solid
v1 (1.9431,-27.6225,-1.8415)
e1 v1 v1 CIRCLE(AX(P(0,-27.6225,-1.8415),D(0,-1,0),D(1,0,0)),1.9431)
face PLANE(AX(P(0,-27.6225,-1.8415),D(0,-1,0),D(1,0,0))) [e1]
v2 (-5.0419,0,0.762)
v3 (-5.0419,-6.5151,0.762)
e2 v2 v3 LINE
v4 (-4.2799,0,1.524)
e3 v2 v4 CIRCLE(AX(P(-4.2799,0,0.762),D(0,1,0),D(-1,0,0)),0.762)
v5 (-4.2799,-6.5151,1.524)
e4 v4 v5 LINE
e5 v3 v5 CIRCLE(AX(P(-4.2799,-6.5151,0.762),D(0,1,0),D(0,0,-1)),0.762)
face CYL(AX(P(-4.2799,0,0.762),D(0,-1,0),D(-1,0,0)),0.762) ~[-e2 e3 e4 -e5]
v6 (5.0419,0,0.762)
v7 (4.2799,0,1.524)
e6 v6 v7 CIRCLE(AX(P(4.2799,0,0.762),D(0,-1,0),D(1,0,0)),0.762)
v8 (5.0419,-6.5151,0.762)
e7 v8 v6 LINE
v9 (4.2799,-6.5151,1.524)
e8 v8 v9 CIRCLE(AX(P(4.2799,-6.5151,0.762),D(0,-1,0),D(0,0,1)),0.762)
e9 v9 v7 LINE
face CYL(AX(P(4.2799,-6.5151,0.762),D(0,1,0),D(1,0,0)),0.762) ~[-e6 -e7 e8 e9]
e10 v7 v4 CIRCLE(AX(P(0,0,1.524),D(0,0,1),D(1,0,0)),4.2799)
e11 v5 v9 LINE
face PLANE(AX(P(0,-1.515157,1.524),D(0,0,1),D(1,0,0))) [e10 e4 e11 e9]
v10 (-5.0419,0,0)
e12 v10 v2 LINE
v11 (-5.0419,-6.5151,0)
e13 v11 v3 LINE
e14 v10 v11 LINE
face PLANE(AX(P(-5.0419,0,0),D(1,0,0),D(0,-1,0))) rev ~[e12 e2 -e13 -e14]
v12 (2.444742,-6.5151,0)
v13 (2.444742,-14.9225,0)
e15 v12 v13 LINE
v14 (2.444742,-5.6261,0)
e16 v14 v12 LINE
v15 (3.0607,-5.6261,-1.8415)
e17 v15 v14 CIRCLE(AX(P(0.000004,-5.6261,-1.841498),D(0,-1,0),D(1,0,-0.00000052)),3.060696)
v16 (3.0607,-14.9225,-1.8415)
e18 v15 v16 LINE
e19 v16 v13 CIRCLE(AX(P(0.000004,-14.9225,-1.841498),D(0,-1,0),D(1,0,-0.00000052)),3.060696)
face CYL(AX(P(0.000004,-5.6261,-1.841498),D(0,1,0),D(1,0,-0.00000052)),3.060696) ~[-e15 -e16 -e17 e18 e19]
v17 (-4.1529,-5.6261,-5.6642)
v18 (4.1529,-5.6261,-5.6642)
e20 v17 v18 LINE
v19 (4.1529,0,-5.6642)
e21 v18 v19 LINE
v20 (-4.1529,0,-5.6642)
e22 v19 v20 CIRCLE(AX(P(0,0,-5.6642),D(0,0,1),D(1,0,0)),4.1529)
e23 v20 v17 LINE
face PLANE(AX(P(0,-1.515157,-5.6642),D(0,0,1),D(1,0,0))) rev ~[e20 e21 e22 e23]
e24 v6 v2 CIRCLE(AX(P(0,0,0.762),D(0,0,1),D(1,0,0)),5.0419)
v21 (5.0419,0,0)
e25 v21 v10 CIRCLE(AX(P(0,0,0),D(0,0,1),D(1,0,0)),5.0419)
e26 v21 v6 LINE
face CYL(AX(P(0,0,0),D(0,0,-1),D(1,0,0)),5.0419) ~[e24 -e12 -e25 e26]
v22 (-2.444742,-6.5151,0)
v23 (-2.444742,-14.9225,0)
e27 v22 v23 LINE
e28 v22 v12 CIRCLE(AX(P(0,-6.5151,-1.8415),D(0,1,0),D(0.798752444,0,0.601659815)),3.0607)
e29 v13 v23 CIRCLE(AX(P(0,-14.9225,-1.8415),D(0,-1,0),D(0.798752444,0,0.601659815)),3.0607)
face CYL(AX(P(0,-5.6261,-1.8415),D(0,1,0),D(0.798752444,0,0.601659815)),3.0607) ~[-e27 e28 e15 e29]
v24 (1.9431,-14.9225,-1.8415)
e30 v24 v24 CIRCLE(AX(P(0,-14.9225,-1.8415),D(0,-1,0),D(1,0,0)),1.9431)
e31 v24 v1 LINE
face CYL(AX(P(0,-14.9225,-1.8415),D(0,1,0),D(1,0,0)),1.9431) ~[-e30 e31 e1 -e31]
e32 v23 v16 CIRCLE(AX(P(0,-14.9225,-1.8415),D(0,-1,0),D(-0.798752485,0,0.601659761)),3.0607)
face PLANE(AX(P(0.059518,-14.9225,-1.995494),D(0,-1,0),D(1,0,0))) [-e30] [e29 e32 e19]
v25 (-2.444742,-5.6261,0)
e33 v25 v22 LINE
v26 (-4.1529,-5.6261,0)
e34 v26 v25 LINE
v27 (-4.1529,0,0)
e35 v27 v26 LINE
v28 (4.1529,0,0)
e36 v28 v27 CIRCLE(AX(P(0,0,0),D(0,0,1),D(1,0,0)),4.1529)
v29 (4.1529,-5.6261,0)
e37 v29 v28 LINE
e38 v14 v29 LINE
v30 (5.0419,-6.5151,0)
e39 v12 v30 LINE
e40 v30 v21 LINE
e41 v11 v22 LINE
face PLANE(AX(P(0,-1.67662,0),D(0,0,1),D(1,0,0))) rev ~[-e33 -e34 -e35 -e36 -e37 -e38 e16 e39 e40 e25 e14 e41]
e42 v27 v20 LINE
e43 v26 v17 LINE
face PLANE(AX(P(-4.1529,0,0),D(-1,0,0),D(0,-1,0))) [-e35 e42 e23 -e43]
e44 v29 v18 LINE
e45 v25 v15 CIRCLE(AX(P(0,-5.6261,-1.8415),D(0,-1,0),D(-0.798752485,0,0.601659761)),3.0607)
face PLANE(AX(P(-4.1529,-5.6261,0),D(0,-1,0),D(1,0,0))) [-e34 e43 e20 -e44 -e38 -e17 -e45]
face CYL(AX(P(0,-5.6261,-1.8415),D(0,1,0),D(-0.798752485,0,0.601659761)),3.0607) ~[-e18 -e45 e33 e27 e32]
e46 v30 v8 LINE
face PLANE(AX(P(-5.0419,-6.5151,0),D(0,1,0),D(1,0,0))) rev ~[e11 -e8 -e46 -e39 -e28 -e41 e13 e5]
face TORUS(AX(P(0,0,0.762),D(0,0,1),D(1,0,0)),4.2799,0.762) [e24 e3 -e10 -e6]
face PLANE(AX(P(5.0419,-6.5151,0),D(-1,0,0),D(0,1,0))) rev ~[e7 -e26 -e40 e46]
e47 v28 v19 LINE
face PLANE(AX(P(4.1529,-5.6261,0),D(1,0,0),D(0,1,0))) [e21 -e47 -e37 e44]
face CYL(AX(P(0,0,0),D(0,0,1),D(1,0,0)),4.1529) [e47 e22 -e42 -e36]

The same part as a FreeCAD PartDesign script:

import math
import FreeCAD as App
import Part
import Sketcher
from FreeCAD import Vector
Q = App.Units.Quantity


def edges_at(feature, points):
    """Names of the edges that pass closest to the given points."""
    edges = feature.Shape.Edges
    near = lambda p: min(range(len(edges)), key=lambda i: edges[i].distToShape(Part.Vertex(*p))[0])
    return sorted({f"Edge{near(p) + 1}" for p in points})

doc = App.newDocument("Part")
body = doc.addObject("PartDesign::Body", "Body")
body.AllowCompound = True

sketch1 = body.newObject("Sketcher::SketchObject", "Sketch")
sketch1.AttachmentSupport = (doc.getObject("XY_Plane"), [""])
sketch1.MapMode = "FlatFace"
sketch1.addGeometry([
    Part.LineSegment(Vector(4.2, -5.6, 0), Vector(4.2, 0, 0)),
    Part.ArcOfCircle(Part.Circle(Vector(0, 0, 0), Vector(0, 0, 1), 4.2), math.radians(0), math.radians(180)),
    Part.LineSegment(Vector(-4.2, 0, 0), Vector(-4.2, -5.6, 0)),
    Part.LineSegment(Vector(-4.2, -5.6, 0), Vector(4.2, -5.6, 0)),
], False)
sketch1.addConstraint([
    Sketcher.Constraint("Tangent", 0, 2, 1, 1),
    Sketcher.Constraint("Tangent", 1, 2, 2, 1),
    Sketcher.Constraint("Coincident", 2, 2, 3, 1),
    Sketcher.Constraint("Coincident", 3, 2, 0, 1),
    Sketcher.Constraint("Vertical", 0),
    Sketcher.Constraint("Vertical", 2),
    Sketcher.Constraint("Horizontal", 3),
    Sketcher.Constraint("Coincident", 1, 3, -1, 1),
    Sketcher.Constraint("Radius", 1, Q("0.1635 in")),
    Sketcher.Constraint("DistanceY", 0, 1, 0, 2, Q("0.2215 in")),
])
pad1 = body.newObject("PartDesign::Pad", "Pad")
pad1.Profile = sketch1
pad1.Length = Q("0.223 in")
pad1.Reversed = True

sketch2 = body.newObject("Sketcher::SketchObject", "Sketch001")
sketch2.AttachmentSupport = (doc.getObject("XY_Plane"), [""])
sketch2.MapMode = "FlatFace"
sketch2.addGeometry([
    Part.ArcOfCircle(Part.Circle(Vector(0, 0, 0), Vector(0, 0, 1), 5), math.radians(0), math.radians(180)),
    Part.LineSegment(Vector(-5, 0, 0), Vector(-5, -6.5, 0)),
    Part.LineSegment(Vector(-5, -6.5, 0), Vector(5, -6.5, 0)),
    Part.LineSegment(Vector(5, -6.5, 0), Vector(5, 0, 0)),
    Part.LineSegment(Vector(4.2, -5.6, 0), Vector(-4.2, -5.6, 0)),
    Part.LineSegment(Vector(-4.2, -5.6, 0), Vector(-4.2, 0, 0)),
    Part.ArcOfCircle(Part.Circle(Vector(0, 0, 0), Vector(0, 0, 1), 4.2), math.radians(0), math.radians(180)),
    Part.LineSegment(Vector(4.2, 0, 0), Vector(4.2, -5.6, 0)),
], False)
sketch2.addConstraint([
    Sketcher.Constraint("Tangent", 0, 2, 1, 1),
    Sketcher.Constraint("Coincident", 1, 2, 2, 1),
    Sketcher.Constraint("Coincident", 2, 2, 3, 1),
    Sketcher.Constraint("Tangent", 3, 2, 0, 1),
    Sketcher.Constraint("Coincident", 4, 2, 5, 1),
    Sketcher.Constraint("Tangent", 5, 2, 6, 2),
    Sketcher.Constraint("Tangent", 6, 1, 7, 1),
    Sketcher.Constraint("Coincident", 7, 2, 4, 1),
    Sketcher.Constraint("Vertical", 1),
    Sketcher.Constraint("Horizontal", 2),
    Sketcher.Constraint("Vertical", 3),
    Sketcher.Constraint("Horizontal", 4),
    Sketcher.Constraint("Vertical", 5),
    Sketcher.Constraint("Vertical", 7),
    Sketcher.Constraint("Coincident", 0, 3, -1, 1),
    Sketcher.Constraint("Coincident", 6, 3, -1, 1),
    Sketcher.Constraint("Radius", 0, Q("0.1985 in")),
    Sketcher.Constraint("Radius", 6, Q("0.1635 in")),
    Sketcher.Constraint("DistanceY", 1, 2, 1, 1, Q("0.2565 in")),
    Sketcher.Constraint("DistanceY", 5, 1, 5, 2, Q("0.2215 in")),
])
pad2 = body.newObject("PartDesign::Pad", "Pad001")
pad2.Profile = sketch2
pad2.Length = Q("0.06 in")
body2 = doc.addObject("PartDesign::Body", "Body001")

sketch3 = body2.newObject("Sketcher::SketchObject", "Sketch002")
sketch3.AttachmentSupport = (doc.getObject("XY_Plane001"), [""])
sketch3.MapMode = "FlatFace"
sketch3.addGeometry([
    Part.LineSegment(Vector(-4.2, 0, 0), Vector(-4.2, -5.6, 0)),
    Part.LineSegment(Vector(-4.2, -5.6, 0), Vector(4.2, -5.6, 0)),
    Part.LineSegment(Vector(4.2, -5.6, 0), Vector(4.2, 0, 0)),
    Part.ArcOfCircle(Part.Circle(Vector(0, 0, 0), Vector(0, 0, 1), 4.2), math.radians(0), math.radians(180)),
], False)
sketch3.addConstraint([
    Sketcher.Constraint("Coincident", 0, 2, 1, 1),
    Sketcher.Constraint("Coincident", 1, 2, 2, 1),
    Sketcher.Constraint("Tangent", 2, 2, 3, 1),
    Sketcher.Constraint("Tangent", 3, 2, 0, 1),
    Sketcher.Constraint("Vertical", 0),
    Sketcher.Constraint("Horizontal", 1),
    Sketcher.Constraint("Vertical", 2),
    Sketcher.Constraint("Coincident", 3, 3, -1, 1),
    Sketcher.Constraint("Radius", 3, Q("0.1635 in")),
    Sketcher.Constraint("DistanceY", 0, 2, 0, 1, Q("0.2215 in")),
])
pad3 = body2.newObject("PartDesign::Pad", "Pad002")
pad3.Profile = sketch3
pad3.Length = Q("0.06 in")
doc.recompute()

boolean = body.newObject("PartDesign::Boolean", "Boolean")
boolean.Type = "Fuse"
boolean.addObjects([body2])

sketch4 = body.newObject("Sketcher::SketchObject", "Sketch003")
sketch4.AttachmentSupport = (doc.getObject("XZ_Plane"), [""])
sketch4.MapMode = "FlatFace"
sketch4.AttachmentOffset = App.Placement(Vector(0, 0, 0.2215 * 25.4), App.Rotation())
sketch4.addGeometry([
    Part.ArcOfCircle(Part.Circle(Vector(0, -1.8, 0), Vector(0, 0, 1), 3.1), math.radians(143), math.radians(360)),
    Part.ArcOfCircle(Part.Circle(Vector(0, -1.8, 0), Vector(0, 0, 1), 3.1), math.radians(0), math.radians(37)),
    Part.ArcOfCircle(Part.Circle(Vector(0, -1.8, 0), Vector(0, 0, 1), 3.1), math.radians(37), math.radians(143)),
], False)
sketch4.addConstraint([
    Sketcher.Constraint("Tangent", 0, 2, 1, 1),
    Sketcher.Constraint("Tangent", 1, 2, 2, 1),
    Sketcher.Constraint("Tangent", 2, 2, 0, 1),
    Sketcher.Constraint("Symmetric", 1, 2, 2, 2, -1, 1),
    Sketcher.Constraint("PointOnObject", 0, 3, -2),
    Sketcher.Constraint("Horizontal", 2, 3, 0, 2),
    Sketcher.Constraint("Radius", 0, Q("0.1205 in")),
    Sketcher.Constraint("DistanceY", 0, 3, -1, 1, Q("0.0725 in")),
])
pad4 = body.newObject("PartDesign::Pad", "Pad003")
pad4.Profile = sketch4
pad4.Length = Q("0.366 in")
doc.recompute()

fillet = body.newObject("PartDesign::Fillet", "Fillet")
fillet.Base = (pad4, edges_at(pad4, [(5.042, -3.258, 1.524)]))
fillet.Radius = Q("0.03 in")

sketch5 = body.newObject("Sketcher::SketchObject", "Sketch004")
sketch5.AttachmentSupport = (doc.getObject("XZ_Plane"), [""])
sketch5.MapMode = "FlatFace"
sketch5.AttachmentOffset = App.Placement(Vector(0, 0, 0.5875 * 25.4), App.Rotation())
sketch5.addGeometry(Part.Circle(Vector(0, -1.8, 0), Vector(0, 0, 1), 1.9), False)
sketch5.addConstraint([
    Sketcher.Constraint("PointOnObject", 0, 3, -2),
    Sketcher.Constraint("Diameter", 0, Q("0.153 in")),
    Sketcher.Constraint("DistanceY", 0, 3, -1, 1, Q("0.0725 in")),
])
pad5 = body.newObject("PartDesign::Pad", "Pad004")
pad5.Profile = sketch5
pad5.Length = Q("0.5 in")

doc.recompute()
